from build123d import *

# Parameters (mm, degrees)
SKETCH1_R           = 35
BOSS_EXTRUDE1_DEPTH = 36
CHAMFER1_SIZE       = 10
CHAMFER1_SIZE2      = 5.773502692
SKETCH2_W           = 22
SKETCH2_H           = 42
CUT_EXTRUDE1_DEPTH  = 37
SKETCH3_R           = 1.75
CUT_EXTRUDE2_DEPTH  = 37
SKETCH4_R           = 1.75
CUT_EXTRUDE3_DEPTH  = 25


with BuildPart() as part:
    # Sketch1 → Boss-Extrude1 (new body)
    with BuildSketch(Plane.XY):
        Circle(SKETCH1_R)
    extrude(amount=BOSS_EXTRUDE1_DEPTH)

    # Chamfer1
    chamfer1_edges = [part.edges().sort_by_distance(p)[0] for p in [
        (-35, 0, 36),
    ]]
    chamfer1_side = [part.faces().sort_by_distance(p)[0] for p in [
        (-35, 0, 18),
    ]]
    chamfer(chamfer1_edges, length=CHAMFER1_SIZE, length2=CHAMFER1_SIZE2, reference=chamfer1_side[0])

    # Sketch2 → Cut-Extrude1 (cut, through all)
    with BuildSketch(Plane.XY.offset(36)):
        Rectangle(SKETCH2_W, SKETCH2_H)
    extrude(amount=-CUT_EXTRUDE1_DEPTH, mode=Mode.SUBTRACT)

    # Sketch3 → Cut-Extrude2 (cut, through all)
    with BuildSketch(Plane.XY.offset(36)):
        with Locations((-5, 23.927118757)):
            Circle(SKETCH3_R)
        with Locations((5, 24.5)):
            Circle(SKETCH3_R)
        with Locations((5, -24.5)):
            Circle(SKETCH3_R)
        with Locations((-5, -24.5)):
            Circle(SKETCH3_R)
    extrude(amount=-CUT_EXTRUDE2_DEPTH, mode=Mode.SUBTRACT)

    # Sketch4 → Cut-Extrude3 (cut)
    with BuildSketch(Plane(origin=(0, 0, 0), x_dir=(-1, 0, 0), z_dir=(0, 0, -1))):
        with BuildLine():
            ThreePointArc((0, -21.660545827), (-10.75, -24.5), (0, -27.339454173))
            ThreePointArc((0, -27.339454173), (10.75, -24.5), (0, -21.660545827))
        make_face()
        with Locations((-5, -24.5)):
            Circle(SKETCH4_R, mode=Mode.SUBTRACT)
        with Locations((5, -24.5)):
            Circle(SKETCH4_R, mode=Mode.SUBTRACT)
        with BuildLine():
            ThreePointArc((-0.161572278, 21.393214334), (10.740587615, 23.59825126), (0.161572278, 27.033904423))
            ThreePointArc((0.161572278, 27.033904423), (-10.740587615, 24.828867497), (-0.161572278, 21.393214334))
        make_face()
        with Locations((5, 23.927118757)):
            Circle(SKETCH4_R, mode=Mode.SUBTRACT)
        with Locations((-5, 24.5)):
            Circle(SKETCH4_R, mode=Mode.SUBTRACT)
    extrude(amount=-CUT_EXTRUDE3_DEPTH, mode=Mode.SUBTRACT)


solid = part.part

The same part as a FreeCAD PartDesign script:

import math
import FreeCAD as App
import Part
import Sketcher


def edges_at(feature, points):
    """Names of the edges that pass closest to the given points."""
    edges = feature.Shape.Edges
    near = lambda p: min(range(len(edges)), key=lambda i: edges[i].distToShape(Part.Vertex(*p))[0])
    return sorted({f"Edge{near(p) + 1}" for p in points})

doc = App.newDocument("Part")
body = doc.addObject("PartDesign::Body", "Body")

sketch1 = doc.addObject("Sketcher::SketchObject", "Sketch")
body.addObject(sketch1)
sketch1.AttachmentSupport = (doc.XY_Plane, [""])
sketch1.MapMode = "FlatFace"
sketch1.addGeometry(Part.Circle(App.Vector(0, 0, 0), App.Vector(0, 0, 1), 35), False)
sketch1.addConstraint([
    Sketcher.Constraint("Coincident", 0, 3, -1, 1),
    Sketcher.Constraint("Diameter", 0, 70.0),
])
pad1 = doc.addObject("PartDesign::Pad", "Pad")
body.addObject(pad1)
pad1.Profile = sketch1
pad1.Length = 36
doc.recompute()

chamfer = doc.addObject("PartDesign::Chamfer", "Chamfer")
body.addObject(chamfer)
chamfer.Base = (pad1, edges_at(pad1, [(-35, 0, 36)]))
chamfer.ChamferType = "Two distances"
chamfer.Size = 10
chamfer.Size2 = 5.773503

sketch2 = doc.addObject("Sketcher::SketchObject", "Sketch001")
body.addObject(sketch2)
sketch2.AttachmentSupport = (doc.XY_Plane, [""])
sketch2.MapMode = "FlatFace"
sketch2.AttachmentOffset = App.Placement(App.Vector(0, 0, 36), App.Rotation())
sketch2.addGeometry([
    Part.LineSegment(App.Vector(-11, 21, 0), App.Vector(-11, -21, 0)),
    Part.LineSegment(App.Vector(-11, -21, 0), App.Vector(11, -21, 0)),
    Part.LineSegment(App.Vector(11, -21, 0), App.Vector(11, 21, 0)),
    Part.LineSegment(App.Vector(11, 21, 0), App.Vector(-11, 21, 0)),
], False)
sketch2.addConstraint([
    Sketcher.Constraint("Coincident", 0, 2, 1, 1),
    Sketcher.Constraint("Coincident", 1, 2, 2, 1),
    Sketcher.Constraint("Coincident", 2, 2, 3, 1),
    Sketcher.Constraint("Coincident", 3, 2, 0, 1),
    Sketcher.Constraint("Vertical", 0),
    Sketcher.Constraint("Horizontal", 1),
    Sketcher.Constraint("Vertical", 2),
    Sketcher.Constraint("Horizontal", 3),
    Sketcher.Constraint("Symmetric", 0, 2, 2, 2, -1, 1),
    Sketcher.Constraint("DistanceX", 1, 1, 1, 2, 22.0),
    Sketcher.Constraint("DistanceY", 0, 2, 0, 1, 42.0),
])
pocket1 = doc.addObject("PartDesign::Pocket", "Pocket")
body.addObject(pocket1)
pocket1.Profile = sketch2
pocket1.Type = "ThroughAll"

sketch3 = doc.addObject("Sketcher::SketchObject", "Sketch002")
body.addObject(sketch3)
sketch3.AttachmentSupport = (doc.XY_Plane, [""])
sketch3.MapMode = "FlatFace"
sketch3.AttachmentOffset = App.Placement(App.Vector(0, 0, 36), App.Rotation())
sketch3.addGeometry([
    Part.Circle(App.Vector(-5, 23.927119, 0), App.Vector(0, 0, 1), 1.75),
    Part.Circle(App.Vector(5, 24.5, 0), App.Vector(0, 0, 1), 1.75),
    Part.Circle(App.Vector(5, -24.5, 0), App.Vector(0, 0, 1), 1.75),
    Part.Circle(App.Vector(-5, -24.5, 0), App.Vector(0, 0, 1), 1.75),
], False)
sketch3.addConstraint([
    Sketcher.Constraint("Equal", 0, 1),
    Sketcher.Constraint("Equal", 1, 2),
    Sketcher.Constraint("Equal", 2, 3),
    Sketcher.Constraint("Symmetric", 1, 3, 3, 3, -1, 1),
    Sketcher.Constraint("Symmetric", 2, 3, 3, 3, -2),
    Sketcher.Constraint("Vertical", 0, 3, 3, 3),
    Sketcher.Constraint("Diameter", 0, 3.5),
    Sketcher.Constraint("DistanceX", 0, 3, -1, 1, 5.0),
    Sketcher.Constraint("DistanceY", 2, 3, 1, 3, 49.0),
    Sketcher.Constraint("DistanceY", -1, 1, 0, 3, 23.927119),
])
pocket2 = doc.addObject("PartDesign::Pocket", "Pocket001")
body.addObject(pocket2)
pocket2.Profile = sketch3
pocket2.Type = "ThroughAll"

sketch4 = doc.addObject("Sketcher::SketchObject", "Sketch003")
body.addObject(sketch4)
sketch4.AttachmentSupport = (doc.XY_Plane, [""])
sketch4.MapMode = "FlatFace"
sketch4.addGeometry([
    Part.ArcOfCircle(Part.Circle(App.Vector(5, -24.5, 0), App.Vector(0, 0, 1), 5.75), math.radians(-150.408154), math.radians(150.408154)),
    Part.ArcOfCircle(Part.Circle(App.Vector(-5, -24.5, 0), App.Vector(0, 0, 1), 5.75), math.radians(29.591846), math.radians(330.408154)),
    Part.Circle(App.Vector(5, -24.5, 0), App.Vector(0, 0, 1), 1.75),
    Part.Circle(App.Vector(-5, -24.5, 0), App.Vector(0, 0, 1), 1.75),
    Part.ArcOfCircle(Part.Circle(App.Vector(-5, 23.927119, 0), App.Vector(0, 0, 1), 5.75), math.radians(32.704782), math.radians(333.852786)),
    Part.ArcOfCircle(Part.Circle(App.Vector(5, 24.5, 0), App.Vector(0, 0, 1), 5.75), math.radians(-147.295218), math.radians(153.852786)),
    Part.Circle(App.Vector(-5, 23.927119, 0), App.Vector(0, 0, 1), 1.75),
    Part.Circle(App.Vector(5, 24.5, 0), App.Vector(0, 0, 1), 1.75),
], False)
sketch4.addConstraint([
    Sketcher.Constraint("Coincident", 0, 1, 1, 2),
    Sketcher.Constraint("Coincident", 1, 1, 0, 2),
    Sketcher.Constraint("Coincident", 4, 1, 5, 2),
    Sketcher.Constraint("Coincident", 5, 1, 4, 2),
    Sketcher.Constraint("Coincident", 2, 3, 0, 3),
    Sketcher.Constraint("Coincident", 3, 3, 1, 3),
    Sketcher.Constraint("Coincident", 6, 3, 4, 3),
    Sketcher.Constraint("Coincident", 7, 3, 5, 3),
    Sketcher.Constraint("Equal", 0, 1),
    Sketcher.Constraint("Equal", 2, 3),
    Sketcher.Constraint("Equal", 1, 4),
    Sketcher.Constraint("Equal", 4, 5),
    Sketcher.Constraint("Equal", 3, 6),
    Sketcher.Constraint("Equal", 6, 7),
    Sketcher.Constraint("Symmetric", 1, 3, 5, 3, -1, 1),
    Sketcher.Constraint("Symmetric", 0, 3, 1, 3, -2),
    Sketcher.Constraint("Vertical", 3, 3, 4, 3),
    Sketcher.Constraint("Diameter", 2, 3.5),
    Sketcher.Constraint("Radius", 0, 5.75),
    Sketcher.Constraint("DistanceX", -1, 1, 0, 3, 5.0),
    Sketcher.Constraint("DistanceY", 0, 3, 5, 3, 49.0),
    Sketcher.Constraint("DistanceY", -1, 1, 4, 3, 23.927119),
])
pocket3 = doc.addObject("PartDesign::Pocket", "Pocket002")
body.addObject(pocket3)
pocket3.Profile = sketch4
pocket3.Length = 25
pocket3.Reversed = True

doc.recompute()
